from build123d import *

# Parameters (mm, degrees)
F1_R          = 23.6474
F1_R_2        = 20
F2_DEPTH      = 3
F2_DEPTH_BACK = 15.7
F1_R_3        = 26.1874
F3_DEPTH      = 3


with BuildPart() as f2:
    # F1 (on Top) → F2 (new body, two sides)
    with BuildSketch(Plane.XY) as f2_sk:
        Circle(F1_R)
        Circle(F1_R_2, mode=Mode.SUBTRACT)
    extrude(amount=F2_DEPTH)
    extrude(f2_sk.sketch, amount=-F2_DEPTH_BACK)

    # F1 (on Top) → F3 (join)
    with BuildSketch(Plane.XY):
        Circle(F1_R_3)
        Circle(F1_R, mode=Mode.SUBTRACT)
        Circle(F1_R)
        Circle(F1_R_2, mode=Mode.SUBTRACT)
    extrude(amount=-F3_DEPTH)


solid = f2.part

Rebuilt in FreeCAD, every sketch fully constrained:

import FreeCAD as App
import Part
import Sketcher

V = App.Vector

doc = App.newDocument("Part")
body = doc.addObject("PartDesign::Body", "Body")

# Sketch on XY plane
sketch1 = body.newObject("Sketcher::SketchObject", "Sketch")
sketch1.AttachmentSupport = (doc.getObject("XY_Plane"), [""])
sketch1.MapMode = "FlatFace"
sketch1.addGeometry(Part.Circle(V(0, 0, 0), V(0, 0, 1), 24), False)
sketch1.addGeometry(Part.Circle(V(0, 0, 0), V(0, 0, 1), 20), False)
sketch1.addConstraint(Sketcher.Constraint("Coincident", 0, 3, -1, 1))
sketch1.addConstraint(Sketcher.Constraint("Coincident", 1, 3, -1, 1))
sketch1.addConstraint(Sketcher.Constraint("Diameter", 1, 40.0))
sketch1.addConstraint(Sketcher.Constraint("Diameter", 0, 47.2948))
pad1 = body.newObject("PartDesign::Pad", "Pad")
pad1.Profile = sketch1
pad1.Type = "TwoLengths"
pad1.Length = 3
pad1.Length2 = 15.7

# Sketch on XY plane
sketch2 = body.newObject("Sketcher::SketchObject", "Sketch001")
sketch2.AttachmentSupport = (doc.getObject("XY_Plane"), [""])
sketch2.MapMode = "FlatFace"
sketch2.addGeometry(Part.Circle(V(0, 0, 0), V(0, 0, 1), 26), False)
sketch2.addGeometry(Part.Circle(V(0, 0, 0), V(0, 0, 1), 20), False)
sketch2.addConstraint(Sketcher.Constraint("Coincident", 0, 3, -1, 1))
sketch2.addConstraint(Sketcher.Constraint("Coincident", 1, 3, -1, 1))
sketch2.addConstraint(Sketcher.Constraint("Diameter", 1, 40.0))
sketch2.addConstraint(Sketcher.Constraint("Diameter", 0, 52.3748))
pad2 = body.newObject("PartDesign::Pad", "Pad001")
pad2.Profile = sketch2
pad2.Length = 3
pad2.Reversed = True

doc.recompute()
